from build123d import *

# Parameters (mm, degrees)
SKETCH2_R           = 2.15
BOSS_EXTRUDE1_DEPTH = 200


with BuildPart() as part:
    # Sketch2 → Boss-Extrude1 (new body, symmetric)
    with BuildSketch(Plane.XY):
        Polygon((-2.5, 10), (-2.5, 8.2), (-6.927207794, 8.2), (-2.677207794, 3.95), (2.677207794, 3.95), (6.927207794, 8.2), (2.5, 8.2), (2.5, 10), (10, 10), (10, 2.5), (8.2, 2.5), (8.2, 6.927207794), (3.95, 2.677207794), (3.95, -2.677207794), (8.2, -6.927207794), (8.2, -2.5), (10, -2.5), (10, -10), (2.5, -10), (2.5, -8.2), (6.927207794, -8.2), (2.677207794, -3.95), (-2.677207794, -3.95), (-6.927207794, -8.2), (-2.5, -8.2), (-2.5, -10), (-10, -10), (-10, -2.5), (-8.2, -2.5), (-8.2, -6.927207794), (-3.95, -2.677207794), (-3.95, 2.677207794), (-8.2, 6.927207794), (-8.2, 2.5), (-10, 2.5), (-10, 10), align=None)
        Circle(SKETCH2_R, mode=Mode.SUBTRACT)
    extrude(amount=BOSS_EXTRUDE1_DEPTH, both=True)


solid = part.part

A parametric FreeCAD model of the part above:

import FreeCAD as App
import Part
import Sketcher

V = App.Vector
Q = App.Units.Quantity


def add_polygon(sketch, points):
    """Adds a closed chain of lines whose ends are joined by coincident constraints."""
    first, n = sketch.GeometryCount, len(points)
    for a, b in zip(points, points[1:] + points[:1]):
        sketch.addGeometry(Part.LineSegment(App.Vector(*a, 0), App.Vector(*b, 0)), False)
    for i in range(n):
        sketch.addConstraint(Sketcher.Constraint("Coincident", first + i, 2, first + (i + 1) % n, 1))

doc = App.newDocument("Part")
body = doc.addObject("PartDesign::Body", "Body")

# Sketch on XY plane
sketch1 = doc.addObject("Sketcher::SketchObject", "Sketch")
body.addObject(sketch1)
sketch1.AttachmentSupport = (doc.XY_Plane, [""])
sketch1.MapMode = "FlatFace"
add_polygon(sketch1, [(-2.5, 8.2), (-2.5, 10), (-10, 10), (-10, 2.5), (-8.2, 2.5), (-8.2, 6.9), (-4, 2.7), (-4, -2.7), (-8.2, -6.9), (-8.2, -2.5), (-10, -2.5), (-10, -10), (-2.5, -10), (-2.5, -8.2), (-6.9, -8.2), (-2.7, -4), (2.7, -4), (6.9, -8.2), (2.5, -8.2), (2.5, -10), (10, -10), (10, -2.5), (8.2, -2.5), (8.2, -6.9), (4, -2.7), (4, 2.7), (8.2, 6.9), (8.2, 2.5), (10, 2.5), (10, 10), (2.5, 10), (2.5, 8.2), (6.9, 8.2), (2.7, 4), (-2.7, 4), (-6.9, 8.2)])  # lines 0-35
sketch1.addGeometry(Part.Circle(V(0, 0, 0), V(0, 0, 1), 2.1), False)  # 36
sketch1.addConstraint(Sketcher.Constraint("Vertical", 0))
sketch1.addConstraint(Sketcher.Constraint("Horizontal", 1))
sketch1.addConstraint(Sketcher.Constraint("Vertical", 2))
sketch1.addConstraint(Sketcher.Constraint("Horizontal", 3))
sketch1.addConstraint(Sketcher.Constraint("Vertical", 4))
sketch1.addConstraint(Sketcher.Constraint("Vertical", 6))
sketch1.addConstraint(Sketcher.Constraint("Vertical", 8))
sketch1.addConstraint(Sketcher.Constraint("Horizontal", 9))
sketch1.addConstraint(Sketcher.Constraint("Vertical", 10))
sketch1.addConstraint(Sketcher.Constraint("Horizontal", 11))
sketch1.addConstraint(Sketcher.Constraint("Vertical", 12))
sketch1.addConstraint(Sketcher.Constraint("Horizontal", 13))
sketch1.addConstraint(Sketcher.Constraint("Horizontal", 15))
sketch1.addConstraint(Sketcher.Constraint("Horizontal", 17))
sketch1.addConstraint(Sketcher.Constraint("Vertical", 18))
sketch1.addConstraint(Sketcher.Constraint("Horizontal", 19))
sketch1.addConstraint(Sketcher.Constraint("Vertical", 20))
sketch1.addConstraint(Sketcher.Constraint("Horizontal", 21))
sketch1.addConstraint(Sketcher.Constraint("Vertical", 22))
sketch1.addConstraint(Sketcher.Constraint("Vertical", 24))
sketch1.addConstraint(Sketcher.Constraint("Vertical", 26))
sketch1.addConstraint(Sketcher.Constraint("Horizontal", 27))
sketch1.addConstraint(Sketcher.Constraint("Vertical", 28))
sketch1.addConstraint(Sketcher.Constraint("Horizontal", 29))
sketch1.addConstraint(Sketcher.Constraint("Vertical", 30))
sketch1.addConstraint(Sketcher.Constraint("Horizontal", 31))
sketch1.addConstraint(Sketcher.Constraint("Horizontal", 33))
sketch1.addConstraint(Sketcher.Constraint("Horizontal", 35))
sketch1.addConstraint(Sketcher.Constraint("Coincident", 36, 3, -1, 1))
sketch1.addConstraint(Sketcher.Constraint("Symmetric", 0, 2, 18, 2, -1, 1))
sketch1.addConstraint(Sketcher.Constraint("Symmetric", 2, 2, 20, 2, -1, 1))
sketch1.addConstraint(Sketcher.Constraint("Symmetric", 4, 2, 22, 2, -1, 1))
sketch1.addConstraint(Sketcher.Constraint("Symmetric", 5, 2, 23, 2, -1, 1))
sketch1.addConstraint(Sketcher.Constraint("Symmetric", 7, 2, 25, 2, -1, 1))
sketch1.addConstraint(Sketcher.Constraint("Symmetric", 9, 2, 27, 2, -1, 1))
sketch1.addConstraint(Sketcher.Constraint("Symmetric", 11, 2, 29, 2, -1, 1))
sketch1.addConstraint(Sketcher.Constraint("Symmetric", 13, 2, 31, 2, -1, 1))
sketch1.addConstraint(Sketcher.Constraint("Symmetric", 14, 2, 32, 2, -1, 1))
sketch1.addConstraint(Sketcher.Constraint("Symmetric", 16, 2, 34, 2, -1, 1))
sketch1.addConstraint(Sketcher.Constraint("Symmetric", 13, 2, 16, 2, -2))
sketch1.addConstraint(Sketcher.Constraint("Symmetric", 11, 2, 18, 2, -2))
sketch1.addConstraint(Sketcher.Constraint("Symmetric", 9, 2, 20, 2, -2))
sketch1.addConstraint(Sketcher.Constraint("Symmetric", 7, 2, 22, 2, -2))
sketch1.addConstraint(Sketcher.Constraint("Perpendicular", 5, 7))
sketch1.addConstraint(Sketcher.Constraint("Parallel", 7, 14))
sketch1.addConstraint(Sketcher.Constraint("Perpendicular", 14, 16))
sketch1.addConstraint(Sketcher.Constraint("Perpendicular", 23, 25))
sketch1.addConstraint(Sketcher.Constraint("Perpendicular", 32, 34))
sketch1.addConstraint(Sketcher.Constraint("Horizontal", 6, 2, 23, 2))
sketch1.addConstraint(Sketcher.Constraint("Equal", 27, 0))
sketch1.addConstraint(Sketcher.Constraint("Equal", 29, 2))
sketch1.addConstraint(Sketcher.Constraint("Equal", 35, 4))
sketch1.addConstraint(Sketcher.Constraint("Equal", 33, 6))
sketch1.addConstraint(Sketcher.Constraint("Equal", 7, 14))
sketch1.addConstraint(Sketcher.Constraint("Diameter", 36, Q("4.3 mm")))
sketch1.addConstraint(Sketcher.Constraint("DistanceX", 1, 2, 1, 1, Q("7.5 mm")))
sketch1.addConstraint(Sketcher.Constraint("DistanceX", 3, 1, 3, 2, Q("1.8 mm")))
sketch1.addConstraint(Sketcher.Constraint("DistanceY", -1, 1, 0, 2, Q("10 mm")))
sketch1.addConstraint(Sketcher.Constraint("DistanceX", 5, 2, 24, 2, Q("7.9 mm")))
sketch1.addConstraint(Sketcher.Constraint("DistanceX", 13, 2, 13, 1, Q("4.427208 mm")))
pad1 = doc.addObject("PartDesign::Pad", "Pad")
body.addObject(pad1)
pad1.Profile = sketch1
pad1.Length = 400
pad1.Midplane = True

doc.recompute()
